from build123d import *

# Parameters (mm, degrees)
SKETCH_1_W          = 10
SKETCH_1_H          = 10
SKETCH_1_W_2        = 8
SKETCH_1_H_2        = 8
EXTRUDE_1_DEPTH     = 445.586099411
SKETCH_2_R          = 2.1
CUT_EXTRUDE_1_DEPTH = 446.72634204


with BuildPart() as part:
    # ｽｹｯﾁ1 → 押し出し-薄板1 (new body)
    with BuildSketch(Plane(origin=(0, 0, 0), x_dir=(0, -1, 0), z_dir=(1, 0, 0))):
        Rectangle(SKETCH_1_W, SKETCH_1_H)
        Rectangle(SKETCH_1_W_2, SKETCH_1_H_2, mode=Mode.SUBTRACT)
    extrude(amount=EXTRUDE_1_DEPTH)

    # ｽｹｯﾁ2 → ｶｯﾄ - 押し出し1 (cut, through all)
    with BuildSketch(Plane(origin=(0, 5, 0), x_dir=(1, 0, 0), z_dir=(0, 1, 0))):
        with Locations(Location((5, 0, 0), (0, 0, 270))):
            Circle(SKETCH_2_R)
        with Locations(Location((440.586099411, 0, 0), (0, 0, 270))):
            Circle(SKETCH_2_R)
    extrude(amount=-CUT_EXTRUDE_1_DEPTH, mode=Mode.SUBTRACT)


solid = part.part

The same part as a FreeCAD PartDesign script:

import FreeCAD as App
import Part
import Sketcher
from FreeCAD import Vector

doc = App.newDocument("Part")
body = doc.addObject("PartDesign::Body", "Body")

# Sketch on YZ plane
sketch1 = doc.addObject("Sketcher::SketchObject", "Sketch")
body.addObject(sketch1)
sketch1.AttachmentSupport = (doc.YZ_Plane, [""])
sketch1.MapMode = "FlatFace"
sketch1.addGeometry(Part.LineSegment(Vector(5, -5, 0), Vector(5, 5, 0)), False)
sketch1.addGeometry(Part.LineSegment(Vector(5, 5, 0), Vector(-5, 5, 0)), False)
sketch1.addGeometry(Part.LineSegment(Vector(-5, 5, 0), Vector(-5, -5, 0)), False)
sketch1.addGeometry(Part.LineSegment(Vector(-5, -5, 0), Vector(5, -5, 0)), False)
sketch1.addGeometry(Part.LineSegment(Vector(-4, 4, 0), Vector(4, 4, 0)), False)
sketch1.addGeometry(Part.LineSegment(Vector(4, 4, 0), Vector(4, -4, 0)), False)
sketch1.addGeometry(Part.LineSegment(Vector(4, -4, 0), Vector(-4, -4, 0)), False)
sketch1.addGeometry(Part.LineSegment(Vector(-4, -4, 0), Vector(-4, 4, 0)), False)
sketch1.addConstraint(Sketcher.Constraint("Coincident", 0, 2, 1, 1))
sketch1.addConstraint(Sketcher.Constraint("Coincident", 1, 2, 2, 1))
sketch1.addConstraint(Sketcher.Constraint("Coincident", 2, 2, 3, 1))
sketch1.addConstraint(Sketcher.Constraint("Coincident", 3, 2, 0, 1))
sketch1.addConstraint(Sketcher.Constraint("Coincident", 4, 2, 5, 1))
sketch1.addConstraint(Sketcher.Constraint("Coincident", 5, 2, 6, 1))
sketch1.addConstraint(Sketcher.Constraint("Coincident", 6, 2, 7, 1))
sketch1.addConstraint(Sketcher.Constraint("Coincident", 7, 2, 4, 1))
sketch1.addConstraint(Sketcher.Constraint("Vertical", 0))
sketch1.addConstraint(Sketcher.Constraint("Horizontal", 1))
sketch1.addConstraint(Sketcher.Constraint("Vertical", 2))
sketch1.addConstraint(Sketcher.Constraint("Horizontal", 3))
sketch1.addConstraint(Sketcher.Constraint("Horizontal", 4))
sketch1.addConstraint(Sketcher.Constraint("Vertical", 5))
sketch1.addConstraint(Sketcher.Constraint("Horizontal", 6))
sketch1.addConstraint(Sketcher.Constraint("Vertical", 7))
sketch1.addConstraint(Sketcher.Constraint("Symmetric", 0, 2, 2, 2, -1, 1))
sketch1.addConstraint(Sketcher.Constraint("Symmetric", 4, 2, 6, 2, -1, 1))
sketch1.addConstraint(Sketcher.Constraint("Equal", 3, 0))
sketch1.addConstraint(Sketcher.Constraint("Equal", 6, 5))
sketch1.addConstraint(Sketcher.Constraint("DistanceX", 1, 2, 1, 1, 10.0))
sketch1.addConstraint(Sketcher.Constraint("DistanceX", 4, 1, 4, 2, 8.0))
pad1 = doc.addObject("PartDesign::Pad", "Pad")
body.addObject(pad1)
pad1.Profile = sketch1
pad1.Length = 445.586099

# Sketch on XZ plane
sketch2 = doc.addObject("Sketcher::SketchObject", "Sketch001")
body.addObject(sketch2)
sketch2.AttachmentSupport = (doc.XZ_Plane, [""])
sketch2.MapMode = "FlatFace"
sketch2.AttachmentOffset = App.Placement(Vector(0, 0, -5), App.Rotation())
sketch2.addGeometry(Part.Circle(Vector(5, 0, 0), Vector(0, 0, 1), 2.1), False)
sketch2.addGeometry(Part.Circle(Vector(440.6, 0, 0), Vector(0, 0, 1), 2.1), False)
sketch2.addConstraint(Sketcher.Constraint("Equal", 0, 1))
sketch2.addConstraint(Sketcher.Constraint("PointOnObject", 0, 3, -1))
sketch2.addConstraint(Sketcher.Constraint("PointOnObject", 1, 3, -1))
sketch2.addConstraint(Sketcher.Constraint("Diameter", 0, 4.2))
sketch2.addConstraint(Sketcher.Constraint("DistanceX", -1, 1, 0, 3, 5.0))
sketch2.addConstraint(Sketcher.Constraint("DistanceX", -1, 1, 1, 3, 440.586099))
pocket1 = doc.addObject("PartDesign::Pocket", "Pocket")
body.addObject(pocket1)
pocket1.Profile = sketch2
pocket1.Type = "ThroughAll"
pocket1.Reversed = True

doc.recompute()
